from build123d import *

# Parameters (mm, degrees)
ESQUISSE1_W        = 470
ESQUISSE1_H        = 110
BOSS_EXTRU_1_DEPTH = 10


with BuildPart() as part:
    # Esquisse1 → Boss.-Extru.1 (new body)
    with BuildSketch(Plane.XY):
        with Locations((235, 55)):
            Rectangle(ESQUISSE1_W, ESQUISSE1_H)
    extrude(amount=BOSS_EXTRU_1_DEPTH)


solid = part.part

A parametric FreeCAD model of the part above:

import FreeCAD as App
import Part
import Sketcher
Q = App.Units.Quantity


def add_polygon(sketch, points):
    """Adds a closed chain of lines whose ends are joined by coincident constraints."""
    first, n = sketch.GeometryCount, len(points)
    for a, b in zip(points, points[1:] + points[:1]):
        sketch.addGeometry(Part.LineSegment(App.Vector(*a, 0), App.Vector(*b, 0)), False)
    for i in range(n):
        sketch.addConstraint(Sketcher.Constraint("Coincident", first + i, 2, first + (i + 1) % n, 1))

doc = App.newDocument("Part")
body = doc.addObject("PartDesign::Body", "Body")

sketch1 = body.newObject("Sketcher::SketchObject", "Sketch")
sketch1.AttachmentSupport = (doc.getObject("XY_Plane"), [""])
sketch1.MapMode = "FlatFace"
add_polygon(sketch1, [(0, 110), (0, 0), (470, 0), (470, 110)])
sketch1.addConstraint(Sketcher.Constraint("Vertical", 0))
sketch1.addConstraint(Sketcher.Constraint("Horizontal", 1))
sketch1.addConstraint(Sketcher.Constraint("Vertical", 2))
sketch1.addConstraint(Sketcher.Constraint("Horizontal", 3))
sketch1.addConstraint(Sketcher.Constraint("Coincident", 0, 2, -1, 1))
sketch1.addConstraint(Sketcher.Constraint("DistanceX", 1, 1, 1, 2, Q("470 mm")))
sketch1.addConstraint(Sketcher.Constraint("DistanceY", 0, 2, 0, 1, Q("110 mm")))
pad1 = body.newObject("PartDesign::Pad", "Pad")
pad1.Profile = sketch1
pad1.Length = 10

doc.recompute()
